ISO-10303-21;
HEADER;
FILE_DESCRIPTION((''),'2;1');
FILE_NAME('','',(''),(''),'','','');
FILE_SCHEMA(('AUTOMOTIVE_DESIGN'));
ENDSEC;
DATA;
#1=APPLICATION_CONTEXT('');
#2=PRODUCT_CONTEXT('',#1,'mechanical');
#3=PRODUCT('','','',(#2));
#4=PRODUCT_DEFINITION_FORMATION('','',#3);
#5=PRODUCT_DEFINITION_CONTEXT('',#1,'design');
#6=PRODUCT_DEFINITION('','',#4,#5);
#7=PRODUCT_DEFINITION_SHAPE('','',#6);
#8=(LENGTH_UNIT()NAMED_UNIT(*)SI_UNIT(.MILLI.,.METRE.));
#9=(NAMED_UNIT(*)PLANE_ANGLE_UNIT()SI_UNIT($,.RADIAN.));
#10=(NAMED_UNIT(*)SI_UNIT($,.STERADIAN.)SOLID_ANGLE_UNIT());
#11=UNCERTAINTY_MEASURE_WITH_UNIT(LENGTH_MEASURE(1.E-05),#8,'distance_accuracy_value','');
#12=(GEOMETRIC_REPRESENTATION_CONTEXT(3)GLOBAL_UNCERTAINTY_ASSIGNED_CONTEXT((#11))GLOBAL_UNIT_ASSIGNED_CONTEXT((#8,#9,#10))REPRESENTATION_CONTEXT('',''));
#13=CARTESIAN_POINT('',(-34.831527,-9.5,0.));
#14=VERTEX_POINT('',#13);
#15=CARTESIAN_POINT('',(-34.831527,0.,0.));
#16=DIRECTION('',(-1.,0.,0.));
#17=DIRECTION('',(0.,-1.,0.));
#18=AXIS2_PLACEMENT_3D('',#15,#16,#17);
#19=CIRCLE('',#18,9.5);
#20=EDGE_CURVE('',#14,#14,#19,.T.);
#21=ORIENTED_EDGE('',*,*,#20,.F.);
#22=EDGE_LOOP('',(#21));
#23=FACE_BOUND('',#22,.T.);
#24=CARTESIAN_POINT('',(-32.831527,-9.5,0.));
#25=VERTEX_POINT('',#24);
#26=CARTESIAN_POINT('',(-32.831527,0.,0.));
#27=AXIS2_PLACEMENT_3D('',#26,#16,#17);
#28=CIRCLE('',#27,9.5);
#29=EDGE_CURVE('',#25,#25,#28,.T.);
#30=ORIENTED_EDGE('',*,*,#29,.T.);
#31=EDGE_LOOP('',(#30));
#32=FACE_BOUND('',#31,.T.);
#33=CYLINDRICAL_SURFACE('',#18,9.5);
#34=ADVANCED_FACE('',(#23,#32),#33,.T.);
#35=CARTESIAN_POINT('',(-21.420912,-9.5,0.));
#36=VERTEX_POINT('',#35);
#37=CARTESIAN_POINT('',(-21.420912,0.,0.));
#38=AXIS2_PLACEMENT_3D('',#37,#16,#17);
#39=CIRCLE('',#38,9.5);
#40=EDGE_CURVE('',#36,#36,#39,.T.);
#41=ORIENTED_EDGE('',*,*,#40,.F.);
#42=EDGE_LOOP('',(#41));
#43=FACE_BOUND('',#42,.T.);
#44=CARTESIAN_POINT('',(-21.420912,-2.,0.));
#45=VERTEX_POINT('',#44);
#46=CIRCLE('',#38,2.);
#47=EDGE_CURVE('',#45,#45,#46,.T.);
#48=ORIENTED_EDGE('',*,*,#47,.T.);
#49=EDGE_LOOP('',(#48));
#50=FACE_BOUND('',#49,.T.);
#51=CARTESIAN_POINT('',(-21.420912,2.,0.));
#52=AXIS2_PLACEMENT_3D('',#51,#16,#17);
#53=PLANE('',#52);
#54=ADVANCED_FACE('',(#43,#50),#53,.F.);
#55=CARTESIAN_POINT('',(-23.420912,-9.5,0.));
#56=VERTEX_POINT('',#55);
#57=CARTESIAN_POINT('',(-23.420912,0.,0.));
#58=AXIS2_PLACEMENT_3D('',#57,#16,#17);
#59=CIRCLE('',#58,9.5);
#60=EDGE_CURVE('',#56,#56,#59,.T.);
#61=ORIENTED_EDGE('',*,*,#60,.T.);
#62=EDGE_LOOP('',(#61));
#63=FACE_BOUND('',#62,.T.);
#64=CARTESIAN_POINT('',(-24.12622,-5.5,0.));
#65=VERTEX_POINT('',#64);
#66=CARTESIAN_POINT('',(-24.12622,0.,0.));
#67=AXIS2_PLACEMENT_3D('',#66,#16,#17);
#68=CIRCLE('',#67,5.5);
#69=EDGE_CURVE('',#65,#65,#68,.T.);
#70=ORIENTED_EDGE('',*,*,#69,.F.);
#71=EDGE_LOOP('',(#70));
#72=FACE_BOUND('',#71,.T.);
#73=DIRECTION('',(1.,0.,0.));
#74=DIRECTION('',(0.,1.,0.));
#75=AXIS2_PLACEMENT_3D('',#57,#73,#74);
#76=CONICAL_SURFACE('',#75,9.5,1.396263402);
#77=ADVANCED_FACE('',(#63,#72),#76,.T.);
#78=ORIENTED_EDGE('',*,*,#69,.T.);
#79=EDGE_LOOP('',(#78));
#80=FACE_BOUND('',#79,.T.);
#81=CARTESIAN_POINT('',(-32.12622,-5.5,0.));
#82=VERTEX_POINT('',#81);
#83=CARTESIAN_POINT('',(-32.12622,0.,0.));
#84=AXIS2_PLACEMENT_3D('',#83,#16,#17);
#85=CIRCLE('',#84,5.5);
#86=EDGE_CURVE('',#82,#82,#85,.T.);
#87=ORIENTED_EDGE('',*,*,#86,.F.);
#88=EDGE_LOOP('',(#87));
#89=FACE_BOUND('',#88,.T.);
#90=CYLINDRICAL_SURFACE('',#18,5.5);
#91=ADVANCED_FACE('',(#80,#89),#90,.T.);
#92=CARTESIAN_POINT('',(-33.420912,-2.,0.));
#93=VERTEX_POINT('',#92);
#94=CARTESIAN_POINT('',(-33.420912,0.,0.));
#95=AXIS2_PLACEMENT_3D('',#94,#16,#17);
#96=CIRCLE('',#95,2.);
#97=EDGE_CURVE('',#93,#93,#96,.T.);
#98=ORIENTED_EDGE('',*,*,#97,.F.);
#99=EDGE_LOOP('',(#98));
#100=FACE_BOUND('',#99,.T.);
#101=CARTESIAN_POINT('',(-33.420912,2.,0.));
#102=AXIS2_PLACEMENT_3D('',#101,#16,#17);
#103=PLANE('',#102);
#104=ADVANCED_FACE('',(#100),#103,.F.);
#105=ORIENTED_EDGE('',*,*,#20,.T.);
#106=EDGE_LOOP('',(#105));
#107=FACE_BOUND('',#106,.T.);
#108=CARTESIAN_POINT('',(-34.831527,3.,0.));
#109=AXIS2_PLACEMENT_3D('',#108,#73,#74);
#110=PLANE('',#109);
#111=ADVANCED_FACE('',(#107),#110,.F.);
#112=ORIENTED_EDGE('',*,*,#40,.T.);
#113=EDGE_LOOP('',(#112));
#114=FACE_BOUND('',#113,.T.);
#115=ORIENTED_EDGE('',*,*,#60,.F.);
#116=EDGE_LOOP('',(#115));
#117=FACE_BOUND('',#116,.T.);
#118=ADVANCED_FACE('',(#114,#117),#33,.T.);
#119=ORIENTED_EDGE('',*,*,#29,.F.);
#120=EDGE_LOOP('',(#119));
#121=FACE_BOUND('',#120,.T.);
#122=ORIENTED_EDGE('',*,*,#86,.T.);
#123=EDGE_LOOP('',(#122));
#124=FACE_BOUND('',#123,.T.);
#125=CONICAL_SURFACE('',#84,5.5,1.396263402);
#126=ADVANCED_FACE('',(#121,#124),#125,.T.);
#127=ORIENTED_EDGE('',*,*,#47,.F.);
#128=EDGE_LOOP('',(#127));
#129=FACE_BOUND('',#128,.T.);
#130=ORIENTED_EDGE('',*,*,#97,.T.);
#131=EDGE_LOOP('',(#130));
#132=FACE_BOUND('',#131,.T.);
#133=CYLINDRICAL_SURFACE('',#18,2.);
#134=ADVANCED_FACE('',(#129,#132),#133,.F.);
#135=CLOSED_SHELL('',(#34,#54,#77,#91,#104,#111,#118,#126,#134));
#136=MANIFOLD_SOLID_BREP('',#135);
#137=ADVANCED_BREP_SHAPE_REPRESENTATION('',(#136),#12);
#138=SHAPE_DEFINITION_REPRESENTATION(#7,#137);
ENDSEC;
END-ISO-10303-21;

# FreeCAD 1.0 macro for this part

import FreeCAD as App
import Part
import Sketcher
Q = App.Units.Quantity


def add_polygon(sketch, points):
    """Adds a closed chain of lines whose ends are joined by coincident constraints."""
    first, n = sketch.GeometryCount, len(points)
    for a, b in zip(points, points[1:] + points[:1]):
        sketch.addGeometry(Part.LineSegment(App.Vector(*a, 0), App.Vector(*b, 0)), False)
    for i in range(n):
        sketch.addConstraint(Sketcher.Constraint("Coincident", first + i, 2, first + (i + 1) % n, 1))

doc = App.newDocument("Part")
params = doc.addObject("Spreadsheet::Sheet", "Params")
for row, (alias, value) in enumerate([
    ("sketch1_width", "2 mm"),
    ("sketch1_width2", "8 mm"),
    ("sketch1_width3", "12 mm"),
    ("sketch1_height", "7.5 mm"),
    ("revolution_angle", "360 deg"),
], start=1):
    params.set(f"A{row}", alias)
    params.set(f"B{row}", "=" + value)
    params.setAlias(f"B{row}", alias)

body = doc.addObject("PartDesign::Body", "Body")

# Sketch on XY plane
sketch1 = body.newObject("Sketcher::SketchObject", "Sketch")
sketch1.AttachmentSupport = (doc.getObject("XY_Plane"), [""])
sketch1.MapMode = "FlatFace"
add_polygon(sketch1, [(-21.4, 2), (-21.4, 9.5), (-23.4, 9.5), (-24.1, 5.5), (-32.1, 5.5), (-32.8, 9.5), (-34.8, 9.5), (-34.8, 0), (-33.4, 0), (-33.4, 2)])  # lines 0-9
sketch1.addConstraint([
    Sketcher.Constraint("Vertical", 0),
    Sketcher.Constraint("Horizontal", 1),
    Sketcher.Constraint("Horizontal", 3),
    Sketcher.Constraint("Horizontal", 5),
    Sketcher.Constraint("Vertical", 6),
    Sketcher.Constraint("Horizontal", 7),
    Sketcher.Constraint("Vertical", 8),
    Sketcher.Constraint("Horizontal", 9),
    Sketcher.Constraint("PointOnObject", 6, 2, -1),
    Sketcher.Constraint("Horizontal", 1, 2, 4, 2),
    Sketcher.Constraint("Equal", 1, 5),
    Sketcher.Constraint("Equal", 5, 8),
    Sketcher.Constraint("Equal", 2, 4),
    Sketcher.Constraint("DistanceX", 1, 2, 1, 1, Q("2 mm")),
    Sketcher.Constraint("DistanceX", 3, 2, 3, 1, Q("8 mm")),
    Sketcher.Constraint("DistanceX", 9, 1, 9, 2, Q("12 mm")),
    Sketcher.Constraint("Angle", 2, Q("-100 deg")),
    Sketcher.Constraint("DistanceY", 0, 1, 0, 2, Q("7.5 mm")),
    Sketcher.Constraint("DistanceY", 2, 2, 1, 2, Q("4 mm")),
    Sketcher.Constraint("DistanceX", 0, 2, -1, 1, Q("21.420912 mm")),
])
sketch1.setExpression("Constraints[23]", "Params.sketch1_width")
sketch1.setExpression("Constraints[24]", "Params.sketch1_width2")
sketch1.setExpression("Constraints[25]", "Params.sketch1_width3")
sketch1.setExpression("Constraints[27]", "Params.sketch1_height")
revolution = body.newObject("PartDesign::Revolution", "Revolution")
revolution.Profile = sketch1
revolution.ReferenceAxis = (sketch1, ["H_Axis"])
revolution.setExpression("Angle", "Params.revolution_angle")

doc.recompute()
